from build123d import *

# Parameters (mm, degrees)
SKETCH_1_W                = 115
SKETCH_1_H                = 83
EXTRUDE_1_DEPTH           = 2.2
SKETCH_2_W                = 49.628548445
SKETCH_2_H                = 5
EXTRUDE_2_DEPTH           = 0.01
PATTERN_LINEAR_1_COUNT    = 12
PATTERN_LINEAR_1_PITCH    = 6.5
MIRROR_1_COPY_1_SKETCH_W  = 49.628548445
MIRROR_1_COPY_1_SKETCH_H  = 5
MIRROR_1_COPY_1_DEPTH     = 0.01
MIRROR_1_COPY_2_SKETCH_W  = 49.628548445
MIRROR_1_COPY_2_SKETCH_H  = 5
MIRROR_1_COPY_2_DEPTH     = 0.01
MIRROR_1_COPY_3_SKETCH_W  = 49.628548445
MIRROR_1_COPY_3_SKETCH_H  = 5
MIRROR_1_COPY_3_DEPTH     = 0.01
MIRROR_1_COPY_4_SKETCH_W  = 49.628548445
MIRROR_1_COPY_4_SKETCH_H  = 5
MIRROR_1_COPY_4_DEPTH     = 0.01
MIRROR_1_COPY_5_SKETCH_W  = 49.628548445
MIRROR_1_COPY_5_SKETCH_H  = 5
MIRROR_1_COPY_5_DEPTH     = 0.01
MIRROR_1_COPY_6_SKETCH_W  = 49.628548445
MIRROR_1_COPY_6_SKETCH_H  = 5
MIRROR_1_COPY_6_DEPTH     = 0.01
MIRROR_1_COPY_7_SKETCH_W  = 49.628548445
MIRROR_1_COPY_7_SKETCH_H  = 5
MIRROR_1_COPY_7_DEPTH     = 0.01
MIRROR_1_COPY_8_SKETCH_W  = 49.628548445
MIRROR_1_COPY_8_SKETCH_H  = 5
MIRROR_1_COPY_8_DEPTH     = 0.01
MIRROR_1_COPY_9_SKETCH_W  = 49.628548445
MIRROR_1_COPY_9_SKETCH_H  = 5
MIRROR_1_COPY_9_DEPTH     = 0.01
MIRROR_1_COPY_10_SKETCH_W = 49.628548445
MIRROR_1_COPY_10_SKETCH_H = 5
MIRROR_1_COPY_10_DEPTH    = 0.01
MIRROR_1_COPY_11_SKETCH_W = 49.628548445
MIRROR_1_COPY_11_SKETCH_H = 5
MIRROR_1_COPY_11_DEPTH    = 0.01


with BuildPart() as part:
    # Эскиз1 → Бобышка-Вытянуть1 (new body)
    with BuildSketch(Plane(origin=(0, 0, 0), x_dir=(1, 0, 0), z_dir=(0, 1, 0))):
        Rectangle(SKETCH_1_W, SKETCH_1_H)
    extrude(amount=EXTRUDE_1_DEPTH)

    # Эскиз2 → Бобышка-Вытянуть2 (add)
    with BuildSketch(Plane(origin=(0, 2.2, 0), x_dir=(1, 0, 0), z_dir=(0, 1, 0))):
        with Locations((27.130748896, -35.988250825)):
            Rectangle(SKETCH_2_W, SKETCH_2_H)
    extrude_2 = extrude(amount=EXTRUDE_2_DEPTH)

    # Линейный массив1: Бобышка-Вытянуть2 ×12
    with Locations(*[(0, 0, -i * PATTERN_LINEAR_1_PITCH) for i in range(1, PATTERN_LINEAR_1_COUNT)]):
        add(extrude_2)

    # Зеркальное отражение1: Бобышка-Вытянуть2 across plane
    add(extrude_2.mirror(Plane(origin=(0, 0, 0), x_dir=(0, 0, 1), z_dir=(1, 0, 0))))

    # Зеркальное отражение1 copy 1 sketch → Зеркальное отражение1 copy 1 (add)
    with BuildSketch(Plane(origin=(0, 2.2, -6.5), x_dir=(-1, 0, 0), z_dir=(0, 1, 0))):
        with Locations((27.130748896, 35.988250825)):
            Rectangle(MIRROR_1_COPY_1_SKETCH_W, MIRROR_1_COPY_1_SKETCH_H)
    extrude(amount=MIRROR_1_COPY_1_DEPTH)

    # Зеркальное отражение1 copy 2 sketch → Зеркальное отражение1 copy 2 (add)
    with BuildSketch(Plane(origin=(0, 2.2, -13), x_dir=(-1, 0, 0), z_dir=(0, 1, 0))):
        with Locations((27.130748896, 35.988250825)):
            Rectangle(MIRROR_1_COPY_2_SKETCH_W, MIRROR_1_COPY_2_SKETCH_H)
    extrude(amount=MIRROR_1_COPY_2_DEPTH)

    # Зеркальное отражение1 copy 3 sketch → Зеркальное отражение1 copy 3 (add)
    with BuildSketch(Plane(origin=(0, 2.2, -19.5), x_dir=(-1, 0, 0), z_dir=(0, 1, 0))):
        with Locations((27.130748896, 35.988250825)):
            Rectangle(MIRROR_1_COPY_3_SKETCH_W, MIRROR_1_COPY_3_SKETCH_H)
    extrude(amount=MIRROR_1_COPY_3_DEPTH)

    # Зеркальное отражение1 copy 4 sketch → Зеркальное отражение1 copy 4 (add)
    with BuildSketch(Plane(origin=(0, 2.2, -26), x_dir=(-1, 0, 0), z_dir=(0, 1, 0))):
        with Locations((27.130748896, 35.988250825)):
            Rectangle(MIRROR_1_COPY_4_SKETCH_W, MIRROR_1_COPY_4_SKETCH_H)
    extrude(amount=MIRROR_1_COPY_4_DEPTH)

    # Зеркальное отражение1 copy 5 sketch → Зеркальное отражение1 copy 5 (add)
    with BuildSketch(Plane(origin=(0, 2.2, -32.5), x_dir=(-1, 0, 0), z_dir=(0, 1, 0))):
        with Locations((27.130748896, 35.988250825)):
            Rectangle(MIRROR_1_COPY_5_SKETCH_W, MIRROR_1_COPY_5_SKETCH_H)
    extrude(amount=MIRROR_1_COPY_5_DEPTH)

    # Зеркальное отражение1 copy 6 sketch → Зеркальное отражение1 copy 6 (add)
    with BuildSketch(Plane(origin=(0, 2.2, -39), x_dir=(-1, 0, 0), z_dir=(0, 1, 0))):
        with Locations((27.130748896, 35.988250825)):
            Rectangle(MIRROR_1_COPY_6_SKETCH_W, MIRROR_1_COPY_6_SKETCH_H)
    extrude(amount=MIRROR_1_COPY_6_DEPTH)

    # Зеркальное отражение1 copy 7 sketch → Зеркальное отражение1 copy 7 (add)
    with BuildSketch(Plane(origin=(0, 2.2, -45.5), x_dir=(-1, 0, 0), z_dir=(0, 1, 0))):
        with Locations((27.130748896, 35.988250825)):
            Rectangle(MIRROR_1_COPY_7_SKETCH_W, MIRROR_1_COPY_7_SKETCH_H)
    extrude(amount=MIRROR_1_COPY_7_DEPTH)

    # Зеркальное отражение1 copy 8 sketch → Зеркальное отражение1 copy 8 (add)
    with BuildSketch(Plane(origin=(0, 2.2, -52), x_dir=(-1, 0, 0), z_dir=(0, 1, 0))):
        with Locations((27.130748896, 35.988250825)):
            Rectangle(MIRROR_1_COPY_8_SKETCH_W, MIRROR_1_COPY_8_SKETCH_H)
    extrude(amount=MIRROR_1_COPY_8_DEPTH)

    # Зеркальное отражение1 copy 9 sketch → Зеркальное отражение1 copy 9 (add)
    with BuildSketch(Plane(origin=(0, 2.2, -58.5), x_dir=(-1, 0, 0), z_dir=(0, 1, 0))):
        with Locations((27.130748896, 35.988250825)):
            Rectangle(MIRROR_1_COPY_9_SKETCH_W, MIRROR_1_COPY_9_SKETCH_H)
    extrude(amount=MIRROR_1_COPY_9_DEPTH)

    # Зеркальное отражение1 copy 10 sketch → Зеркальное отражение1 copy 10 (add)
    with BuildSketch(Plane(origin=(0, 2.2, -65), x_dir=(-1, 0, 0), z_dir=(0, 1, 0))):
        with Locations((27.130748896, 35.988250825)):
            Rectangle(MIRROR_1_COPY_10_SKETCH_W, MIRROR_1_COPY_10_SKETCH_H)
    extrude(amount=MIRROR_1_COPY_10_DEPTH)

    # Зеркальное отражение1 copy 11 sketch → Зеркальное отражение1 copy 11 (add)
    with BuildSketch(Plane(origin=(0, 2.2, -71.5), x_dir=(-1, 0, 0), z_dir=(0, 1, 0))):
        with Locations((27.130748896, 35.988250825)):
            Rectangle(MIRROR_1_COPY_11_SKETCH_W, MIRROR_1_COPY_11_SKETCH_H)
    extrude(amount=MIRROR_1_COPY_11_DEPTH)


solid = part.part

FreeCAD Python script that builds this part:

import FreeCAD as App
import Part
import Sketcher
from FreeCAD import Vector


def add_polygon(sketch, points):
    """Adds a closed chain of lines whose ends are joined by coincident constraints."""
    first, n = sketch.GeometryCount, len(points)
    for a, b in zip(points, points[1:] + points[:1]):
        sketch.addGeometry(Part.LineSegment(App.Vector(*a, 0), App.Vector(*b, 0)), False)
    for i in range(n):
        sketch.addConstraint(Sketcher.Constraint("Coincident", first + i, 2, first + (i + 1) % n, 1))

doc = App.newDocument("Part")
params = doc.addObject("Spreadsheet::Sheet", "Params")
for row, (alias, value) in enumerate([
    ("sketch1_width", "115 mm"),
    ("sketch1_height", "83 mm"),
    ("pad1_length", "2.2 mm"),
    ("sketch2_height", "5 mm"),
    ("pad2_length", "0.01 mm"),
    ("linearpattern_pitch", "6.5 mm"),
    ("sketch3_height", "5 mm"),
    ("pad3_length", "0.01 mm"),
    ("sketch4_height", "5 mm"),
    ("pad4_length", "0.01 mm"),
    ("sketch5_height", "5 mm"),
    ("pad5_length", "0.01 mm"),
    ("sketch6_height", "5 mm"),
    ("pad6_length", "0.01 mm"),
    ("sketch7_height", "5 mm"),
    ("pad7_length", "0.01 mm"),
    ("sketch8_height", "5 mm"),
    ("pad8_length", "0.01 mm"),
    ("sketch9_height", "5 mm"),
    ("pad9_length", "0.01 mm"),
    ("sketch10_height", "5 mm"),
    ("pad10_length", "0.01 mm"),
    ("sketch11_height", "5 mm"),
    ("pad11_length", "0.01 mm"),
    ("sketch12_height", "5 mm"),
    ("pad12_length", "0.01 mm"),
    ("sketch13_height", "5 mm"),
    ("pad13_length", "0.01 mm"),
], start=1):
    params.set(f"A{row}", alias)
    params.set(f"B{row}", "=" + value)
    params.setAlias(f"B{row}", alias)

body = doc.addObject("PartDesign::Body", "Body")

# Sketch on XZ plane
sketch1 = body.newObject("Sketcher::SketchObject", "Sketch")
sketch1.AttachmentSupport = (doc.getObject("XZ_Plane"), [""])
sketch1.MapMode = "FlatFace"
add_polygon(sketch1, [(-58, -42), (-58, 42), (58, 42), (58, -42)])  # lines 0-3
sketch1.addConstraint([
    Sketcher.Constraint("Vertical", 0),
    Sketcher.Constraint("Horizontal", 1),
    Sketcher.Constraint("Vertical", 2),
    Sketcher.Constraint("Horizontal", 3),
    Sketcher.Constraint("Symmetric", 0, 2, 2, 2, -1, 1),
    Sketcher.Constraint("DistanceX", 1, 1, 1, 2, 115.0),
    Sketcher.Constraint("DistanceY", 0, 1, 0, 2, 83.0),
])
sketch1.setExpression("Constraints[9]", "Params.sketch1_width")
sketch1.setExpression("Constraints[10]", "Params.sketch1_height")
pad1 = body.newObject("PartDesign::Pad", "Pad")
pad1.Profile = sketch1
pad1.setExpression("Length", "Params.pad1_length")
pad1.Reversed = True

# Sketch on XZ plane
sketch2 = body.newObject("Sketcher::SketchObject", "Sketch001")
sketch2.AttachmentSupport = (doc.getObject("XZ_Plane"), [""])
sketch2.MapMode = "FlatFace"
sketch2.AttachmentOffset = App.Placement(Vector(0, 0, -2.2), App.Rotation())
add_polygon(sketch2, [(2, 33), (2, 38), (52, 38), (52, 33)])  # lines 0-3
sketch2.addConstraint([
    Sketcher.Constraint("Vertical", 0),
    Sketcher.Constraint("Horizontal", 1),
    Sketcher.Constraint("Vertical", 2),
    Sketcher.Constraint("Horizontal", 3),
    Sketcher.Constraint("DistanceY", 0, 1, 0, 2, 5.0),
    Sketcher.Constraint("DistanceX", 1, 1, 1, 2, 49.628548),
    Sketcher.Constraint("DistanceY", -1, 1, 0, 2, 38.488251),
    Sketcher.Constraint("DistanceX", -1, 1, 0, 2, 2.316475),
])
sketch2.setExpression("Constraints[8]", "Params.sketch2_height")
pad2 = body.newObject("PartDesign::Pad", "Pad001")
pad2.Profile = sketch2
pad2.setExpression("Length", "Params.pad2_length")
pad2.Reversed = True
doc.recompute()

linearpattern = body.newObject("PartDesign::LinearPattern", "LinearPattern")
linearpattern.Originals = [pad2]
linearpattern.Direction = (doc.getObject("Z_Axis"), [""])
linearpattern.Mode = "offset"
linearpattern.setExpression("Offset", "Params.linearpattern_pitch")
linearpattern.Occurrences = 12
linearpattern.Reversed = True
body.Tip = linearpattern
doc.recompute()

mirrored = body.newObject("PartDesign::Mirrored", "Mirrored")
mirrored.Originals = [pad2]
mirrored.MirrorPlane = (doc.getObject("YZ_Plane"), [""])
body.Tip = mirrored

# Sketch on XZ plane
sketch3 = body.newObject("Sketcher::SketchObject", "Sketch002")
sketch3.AttachmentSupport = (doc.getObject("XZ_Plane"), [""])
sketch3.MapMode = "FlatFace"
sketch3.AttachmentOffset = App.Placement(Vector(0, 0, -2.2), App.Rotation())
add_polygon(sketch3, [(-2, 32), (-2, 27), (-52, 27), (-52, 32)])  # lines 0-3
sketch3.addConstraint([
    Sketcher.Constraint("Vertical", 0),
    Sketcher.Constraint("Horizontal", 1),
    Sketcher.Constraint("Vertical", 2),
    Sketcher.Constraint("Horizontal", 3),
    Sketcher.Constraint("DistanceY", 0, 2, 0, 1, 5.0),
    Sketcher.Constraint("DistanceX", 1, 2, 1, 1, 49.628548),
    Sketcher.Constraint("DistanceY", -1, 1, 0, 2, 26.988251),
    Sketcher.Constraint("DistanceX", 0, 2, -1, 1, 2.316475),
])
sketch3.setExpression("Constraints[8]", "Params.sketch3_height")
pad3 = body.newObject("PartDesign::Pad", "Pad002")
pad3.Profile = sketch3
pad3.setExpression("Length", "Params.pad3_length")
pad3.Reversed = True

# Sketch on XZ plane
sketch4 = body.newObject("Sketcher::SketchObject", "Sketch003")
sketch4.AttachmentSupport = (doc.getObject("XZ_Plane"), [""])
sketch4.MapMode = "FlatFace"
sketch4.AttachmentOffset = App.Placement(Vector(0, 0, -2.2), App.Rotation())
add_polygon(sketch4, [(-2, 25), (-2, 20), (-52, 20), (-52, 25)])  # lines 0-3
sketch4.addConstraint([
    Sketcher.Constraint("Vertical", 0),
    Sketcher.Constraint("Horizontal", 1),
    Sketcher.Constraint("Vertical", 2),
    Sketcher.Constraint("Horizontal", 3),
    Sketcher.Constraint("DistanceY", 0, 2, 0, 1, 5.0),
    Sketcher.Constraint("DistanceX", 1, 2, 1, 1, 49.628548),
    Sketcher.Constraint("DistanceY", -1, 1, 0, 2, 20.488251),
    Sketcher.Constraint("DistanceX", 0, 2, -1, 1, 2.316475),
])
sketch4.setExpression("Constraints[8]", "Params.sketch4_height")
pad4 = body.newObject("PartDesign::Pad", "Pad003")
pad4.Profile = sketch4
pad4.setExpression("Length", "Params.pad4_length")
pad4.Reversed = True

# Sketch on XZ plane
sketch5 = body.newObject("Sketcher::SketchObject", "Sketch004")
sketch5.AttachmentSupport = (doc.getObject("XZ_Plane"), [""])
sketch5.MapMode = "FlatFace"
sketch5.AttachmentOffset = App.Placement(Vector(0, 0, -2.2), App.Rotation())
add_polygon(sketch5, [(-2, 19), (-2, 14), (-52, 14), (-52, 19)])  # lines 0-3
sketch5.addConstraint([
    Sketcher.Constraint("Vertical", 0),
    Sketcher.Constraint("Horizontal", 1),
    Sketcher.Constraint("Vertical", 2),
    Sketcher.Constraint("Horizontal", 3),
    Sketcher.Constraint("DistanceY", 0, 2, 0, 1, 5.0),
    Sketcher.Constraint("DistanceX", 1, 2, 1, 1, 49.628548),
    Sketcher.Constraint("DistanceY", -1, 1, 0, 2, 13.988251),
    Sketcher.Constraint("DistanceX", 0, 2, -1, 1, 2.316475),
])
sketch5.setExpression("Constraints[8]", "Params.sketch5_height")
pad5 = body.newObject("PartDesign::Pad", "Pad004")
pad5.Profile = sketch5
pad5.setExpression("Length", "Params.pad5_length")
pad5.Reversed = True

# Sketch on XZ plane
sketch6 = body.newObject("Sketcher::SketchObject", "Sketch005")
sketch6.AttachmentSupport = (doc.getObject("XZ_Plane"), [""])
sketch6.MapMode = "FlatFace"
sketch6.AttachmentOffset = App.Placement(Vector(0, 0, -2.2), App.Rotation())
add_polygon(sketch6, [(-2, 12), (-2, 7), (-52, 7), (-52, 12)])  # lines 0-3
sketch6.addConstraint([
    Sketcher.Constraint("Vertical", 0),
    Sketcher.Constraint("Horizontal", 1),
    Sketcher.Constraint("Vertical", 2),
    Sketcher.Constraint("Horizontal", 3),
    Sketcher.Constraint("DistanceY", 0, 2, 0, 1, 5.0),
    Sketcher.Constraint("DistanceX", 1, 2, 1, 1, 49.628548),
    Sketcher.Constraint("DistanceY", -1, 1, 0, 2, 7.488251),
    Sketcher.Constraint("DistanceX", 0, 2, -1, 1, 2.316475),
])
sketch6.setExpression("Constraints[8]", "Params.sketch6_height")
pad6 = body.newObject("PartDesign::Pad", "Pad005")
pad6.Profile = sketch6
pad6.setExpression("Length", "Params.pad6_length")
pad6.Reversed = True

# Sketch on XZ plane
sketch7 = body.newObject("Sketcher::SketchObject", "Sketch006")
sketch7.AttachmentSupport = (doc.getObject("XZ_Plane"), [""])
sketch7.MapMode = "FlatFace"
sketch7.AttachmentOffset = App.Placement(Vector(0, 0, -2.2), App.Rotation())
add_polygon(sketch7, [(-2, 6), (-2, 1), (-52, 1), (-52, 6)])  # lines 0-3
sketch7.addConstraint([
    Sketcher.Constraint("Vertical", 0),
    Sketcher.Constraint("Horizontal", 1),
    Sketcher.Constraint("Vertical", 2),
    Sketcher.Constraint("Horizontal", 3),
    Sketcher.Constraint("DistanceY", 0, 2, 0, 1, 5.0),
    Sketcher.Constraint("DistanceX", 1, 2, 1, 1, 49.628548),
    Sketcher.Constraint("DistanceY", -1, 1, 0, 2, 0.988251),
    Sketcher.Constraint("DistanceX", 0, 2, -1, 1, 2.316475),
])
sketch7.setExpression("Constraints[8]", "Params.sketch7_height")
pad7 = body.newObject("PartDesign::Pad", "Pad006")
pad7.Profile = sketch7
pad7.setExpression("Length", "Params.pad7_length")
pad7.Reversed = True

# Sketch on XZ plane
sketch8 = body.newObject("Sketcher::SketchObject", "Sketch007")
sketch8.AttachmentSupport = (doc.getObject("XZ_Plane"), [""])
sketch8.MapMode = "FlatFace"
sketch8.AttachmentOffset = App.Placement(Vector(0, 0, -2.2), App.Rotation())
add_polygon(sketch8, [(-2, -1), (-2, -6), (-52, -6), (-52, -1)])  # lines 0-3
sketch8.addConstraint([
    Sketcher.Constraint("Vertical", 0),
    Sketcher.Constraint("Horizontal", 1),
    Sketcher.Constraint("Vertical", 2),
    Sketcher.Constraint("Horizontal", 3),
    Sketcher.Constraint("DistanceY", 0, 2, 0, 1, 5.0),
    Sketcher.Constraint("DistanceX", 1, 2, 1, 1, 49.628548),
    Sketcher.Constraint("DistanceY", 0, 2, -1, 1, 5.511749),
    Sketcher.Constraint("DistanceX", 0, 2, -1, 1, 2.316475),
])
sketch8.setExpression("Constraints[8]", "Params.sketch8_height")
pad8 = body.newObject("PartDesign::Pad", "Pad007")
pad8.Profile = sketch8
pad8.setExpression("Length", "Params.pad8_length")
pad8.Reversed = True

# Sketch on XZ plane
sketch9 = body.newObject("Sketcher::SketchObject", "Sketch008")
sketch9.AttachmentSupport = (doc.getObject("XZ_Plane"), [""])
sketch9.MapMode = "FlatFace"
sketch9.AttachmentOffset = App.Placement(Vector(0, 0, -2.2), App.Rotation())
add_polygon(sketch9, [(-2, -7), (-2, -12), (-52, -12), (-52, -7)])  # lines 0-3
sketch9.addConstraint([
    Sketcher.Constraint("Vertical", 0),
    Sketcher.Constraint("Horizontal", 1),
    Sketcher.Constraint("Vertical", 2),
    Sketcher.Constraint("Horizontal", 3),
    Sketcher.Constraint("DistanceY", 0, 2, 0, 1, 5.0),
    Sketcher.Constraint("DistanceX", 1, 2, 1, 1, 49.628548),
    Sketcher.Constraint("DistanceY", 0, 2, -1, 1, 12.011749),
    Sketcher.Constraint("DistanceX", 0, 2, -1, 1, 2.316475),
])
sketch9.setExpression("Constraints[8]", "Params.sketch9_height")
pad9 = body.newObject("PartDesign::Pad", "Pad008")
pad9.Profile = sketch9
pad9.setExpression("Length", "Params.pad9_length")
pad9.Reversed = True

# Sketch on XZ plane
sketch10 = body.newObject("Sketcher::SketchObject", "Sketch009")
sketch10.AttachmentSupport = (doc.getObject("XZ_Plane"), [""])
sketch10.MapMode = "FlatFace"
sketch10.AttachmentOffset = App.Placement(Vector(0, 0, -2.2), App.Rotation())
add_polygon(sketch10, [(-2.3, -13.5), (-2.3, -18.5), (-51.9, -18.5), (-51.9, -13.5)])  # lines 0-3
sketch10.addConstraint([
    Sketcher.Constraint("Vertical", 0),
    Sketcher.Constraint("Horizontal", 1),
    Sketcher.Constraint("Vertical", 2),
    Sketcher.Constraint("Horizontal", 3),
    Sketcher.Constraint("DistanceY", 0, 2, 0, 1, 5.0),
    Sketcher.Constraint("DistanceX", 1, 2, 1, 1, 49.628548),
    Sketcher.Constraint("DistanceY", 0, 2, -1, 1, 18.511749),
    Sketcher.Constraint("DistanceX", 0, 2, -1, 1, 2.316475),
])
sketch10.setExpression("Constraints[8]", "Params.sketch10_height")
pad10 = body.newObject("PartDesign::Pad", "Pad009")
pad10.Profile = sketch10
pad10.setExpression("Length", "Params.pad10_length")
pad10.Reversed = True

# Sketch on XZ plane
sketch11 = body.newObject("Sketcher::SketchObject", "Sketch010")
sketch11.AttachmentSupport = (doc.getObject("XZ_Plane"), [""])
sketch11.MapMode = "FlatFace"
sketch11.AttachmentOffset = App.Placement(Vector(0, 0, -2.2), App.Rotation())
add_polygon(sketch11, [(-2, -20), (-2, -25), (-52, -25), (-52, -20)])  # lines 0-3
sketch11.addConstraint([
    Sketcher.Constraint("Vertical", 0),
    Sketcher.Constraint("Horizontal", 1),
    Sketcher.Constraint("Vertical", 2),
    Sketcher.Constraint("Horizontal", 3),
    Sketcher.Constraint("DistanceY", 0, 2, 0, 1, 5.0),
    Sketcher.Constraint("DistanceX", 1, 2, 1, 1, 49.628548),
    Sketcher.Constraint("DistanceY", 0, 2, -1, 1, 25.011749),
    Sketcher.Constraint("DistanceX", 0, 2, -1, 1, 2.316475),
])
sketch11.setExpression("Constraints[8]", "Params.sketch11_height")
pad11 = body.newObject("PartDesign::Pad", "Pad010")
pad11.Profile = sketch11
pad11.setExpression("Length", "Params.pad11_length")
pad11.Reversed = True

# Sketch on XZ plane
sketch12 = body.newObject("Sketcher::SketchObject", "Sketch011")
sketch12.AttachmentSupport = (doc.getObject("XZ_Plane"), [""])
sketch12.MapMode = "FlatFace"
sketch12.AttachmentOffset = App.Placement(Vector(0, 0, -2.2), App.Rotation())
add_polygon(sketch12, [(-2, -27), (-2, -32), (-52, -32), (-52, -27)])  # lines 0-3
sketch12.addConstraint([
    Sketcher.Constraint("Vertical", 0),
    Sketcher.Constraint("Horizontal", 1),
    Sketcher.Constraint("Vertical", 2),
    Sketcher.Constraint("Horizontal", 3),
    Sketcher.Constraint("DistanceY", 0, 2, 0, 1, 5.0),
    Sketcher.Constraint("DistanceX", 1, 2, 1, 1, 49.628548),
    Sketcher.Constraint("DistanceY", 0, 2, -1, 1, 31.511749),
    Sketcher.Constraint("DistanceX", 0, 2, -1, 1, 2.316475),
])
sketch12.setExpression("Constraints[8]", "Params.sketch12_height")
pad12 = body.newObject("PartDesign::Pad", "Pad011")
pad12.Profile = sketch12
pad12.setExpression("Length", "Params.pad12_length")
pad12.Reversed = True

# Sketch on XZ plane
sketch13 = body.newObject("Sketcher::SketchObject", "Sketch012")
sketch13.AttachmentSupport = (doc.getObject("XZ_Plane"), [""])
sketch13.MapMode = "FlatFace"
sketch13.AttachmentOffset = App.Placement(Vector(0, 0, -2.2), App.Rotation())
add_polygon(sketch13, [(-2, -33), (-2, -38), (-52, -38), (-52, -33)])  # lines 0-3
sketch13.addConstraint([
    Sketcher.Constraint("Vertical", 0),
    Sketcher.Constraint("Horizontal", 1),
    Sketcher.Constraint("Vertical", 2),
    Sketcher.Constraint("Horizontal", 3),
    Sketcher.Constraint("DistanceY", 0, 2, 0, 1, 5.0),
    Sketcher.Constraint("DistanceX", 1, 2, 1, 1, 49.628548),
    Sketcher.Constraint("DistanceY", 0, 2, -1, 1, 38.011749),
    Sketcher.Constraint("DistanceX", 0, 2, -1, 1, 2.316475),
])
sketch13.setExpression("Constraints[8]", "Params.sketch13_height")
pad13 = body.newObject("PartDesign::Pad", "Pad012")
pad13.Profile = sketch13
pad13.setExpression("Length", "Params.pad13_length")
pad13.Reversed = True

doc.recompute()
